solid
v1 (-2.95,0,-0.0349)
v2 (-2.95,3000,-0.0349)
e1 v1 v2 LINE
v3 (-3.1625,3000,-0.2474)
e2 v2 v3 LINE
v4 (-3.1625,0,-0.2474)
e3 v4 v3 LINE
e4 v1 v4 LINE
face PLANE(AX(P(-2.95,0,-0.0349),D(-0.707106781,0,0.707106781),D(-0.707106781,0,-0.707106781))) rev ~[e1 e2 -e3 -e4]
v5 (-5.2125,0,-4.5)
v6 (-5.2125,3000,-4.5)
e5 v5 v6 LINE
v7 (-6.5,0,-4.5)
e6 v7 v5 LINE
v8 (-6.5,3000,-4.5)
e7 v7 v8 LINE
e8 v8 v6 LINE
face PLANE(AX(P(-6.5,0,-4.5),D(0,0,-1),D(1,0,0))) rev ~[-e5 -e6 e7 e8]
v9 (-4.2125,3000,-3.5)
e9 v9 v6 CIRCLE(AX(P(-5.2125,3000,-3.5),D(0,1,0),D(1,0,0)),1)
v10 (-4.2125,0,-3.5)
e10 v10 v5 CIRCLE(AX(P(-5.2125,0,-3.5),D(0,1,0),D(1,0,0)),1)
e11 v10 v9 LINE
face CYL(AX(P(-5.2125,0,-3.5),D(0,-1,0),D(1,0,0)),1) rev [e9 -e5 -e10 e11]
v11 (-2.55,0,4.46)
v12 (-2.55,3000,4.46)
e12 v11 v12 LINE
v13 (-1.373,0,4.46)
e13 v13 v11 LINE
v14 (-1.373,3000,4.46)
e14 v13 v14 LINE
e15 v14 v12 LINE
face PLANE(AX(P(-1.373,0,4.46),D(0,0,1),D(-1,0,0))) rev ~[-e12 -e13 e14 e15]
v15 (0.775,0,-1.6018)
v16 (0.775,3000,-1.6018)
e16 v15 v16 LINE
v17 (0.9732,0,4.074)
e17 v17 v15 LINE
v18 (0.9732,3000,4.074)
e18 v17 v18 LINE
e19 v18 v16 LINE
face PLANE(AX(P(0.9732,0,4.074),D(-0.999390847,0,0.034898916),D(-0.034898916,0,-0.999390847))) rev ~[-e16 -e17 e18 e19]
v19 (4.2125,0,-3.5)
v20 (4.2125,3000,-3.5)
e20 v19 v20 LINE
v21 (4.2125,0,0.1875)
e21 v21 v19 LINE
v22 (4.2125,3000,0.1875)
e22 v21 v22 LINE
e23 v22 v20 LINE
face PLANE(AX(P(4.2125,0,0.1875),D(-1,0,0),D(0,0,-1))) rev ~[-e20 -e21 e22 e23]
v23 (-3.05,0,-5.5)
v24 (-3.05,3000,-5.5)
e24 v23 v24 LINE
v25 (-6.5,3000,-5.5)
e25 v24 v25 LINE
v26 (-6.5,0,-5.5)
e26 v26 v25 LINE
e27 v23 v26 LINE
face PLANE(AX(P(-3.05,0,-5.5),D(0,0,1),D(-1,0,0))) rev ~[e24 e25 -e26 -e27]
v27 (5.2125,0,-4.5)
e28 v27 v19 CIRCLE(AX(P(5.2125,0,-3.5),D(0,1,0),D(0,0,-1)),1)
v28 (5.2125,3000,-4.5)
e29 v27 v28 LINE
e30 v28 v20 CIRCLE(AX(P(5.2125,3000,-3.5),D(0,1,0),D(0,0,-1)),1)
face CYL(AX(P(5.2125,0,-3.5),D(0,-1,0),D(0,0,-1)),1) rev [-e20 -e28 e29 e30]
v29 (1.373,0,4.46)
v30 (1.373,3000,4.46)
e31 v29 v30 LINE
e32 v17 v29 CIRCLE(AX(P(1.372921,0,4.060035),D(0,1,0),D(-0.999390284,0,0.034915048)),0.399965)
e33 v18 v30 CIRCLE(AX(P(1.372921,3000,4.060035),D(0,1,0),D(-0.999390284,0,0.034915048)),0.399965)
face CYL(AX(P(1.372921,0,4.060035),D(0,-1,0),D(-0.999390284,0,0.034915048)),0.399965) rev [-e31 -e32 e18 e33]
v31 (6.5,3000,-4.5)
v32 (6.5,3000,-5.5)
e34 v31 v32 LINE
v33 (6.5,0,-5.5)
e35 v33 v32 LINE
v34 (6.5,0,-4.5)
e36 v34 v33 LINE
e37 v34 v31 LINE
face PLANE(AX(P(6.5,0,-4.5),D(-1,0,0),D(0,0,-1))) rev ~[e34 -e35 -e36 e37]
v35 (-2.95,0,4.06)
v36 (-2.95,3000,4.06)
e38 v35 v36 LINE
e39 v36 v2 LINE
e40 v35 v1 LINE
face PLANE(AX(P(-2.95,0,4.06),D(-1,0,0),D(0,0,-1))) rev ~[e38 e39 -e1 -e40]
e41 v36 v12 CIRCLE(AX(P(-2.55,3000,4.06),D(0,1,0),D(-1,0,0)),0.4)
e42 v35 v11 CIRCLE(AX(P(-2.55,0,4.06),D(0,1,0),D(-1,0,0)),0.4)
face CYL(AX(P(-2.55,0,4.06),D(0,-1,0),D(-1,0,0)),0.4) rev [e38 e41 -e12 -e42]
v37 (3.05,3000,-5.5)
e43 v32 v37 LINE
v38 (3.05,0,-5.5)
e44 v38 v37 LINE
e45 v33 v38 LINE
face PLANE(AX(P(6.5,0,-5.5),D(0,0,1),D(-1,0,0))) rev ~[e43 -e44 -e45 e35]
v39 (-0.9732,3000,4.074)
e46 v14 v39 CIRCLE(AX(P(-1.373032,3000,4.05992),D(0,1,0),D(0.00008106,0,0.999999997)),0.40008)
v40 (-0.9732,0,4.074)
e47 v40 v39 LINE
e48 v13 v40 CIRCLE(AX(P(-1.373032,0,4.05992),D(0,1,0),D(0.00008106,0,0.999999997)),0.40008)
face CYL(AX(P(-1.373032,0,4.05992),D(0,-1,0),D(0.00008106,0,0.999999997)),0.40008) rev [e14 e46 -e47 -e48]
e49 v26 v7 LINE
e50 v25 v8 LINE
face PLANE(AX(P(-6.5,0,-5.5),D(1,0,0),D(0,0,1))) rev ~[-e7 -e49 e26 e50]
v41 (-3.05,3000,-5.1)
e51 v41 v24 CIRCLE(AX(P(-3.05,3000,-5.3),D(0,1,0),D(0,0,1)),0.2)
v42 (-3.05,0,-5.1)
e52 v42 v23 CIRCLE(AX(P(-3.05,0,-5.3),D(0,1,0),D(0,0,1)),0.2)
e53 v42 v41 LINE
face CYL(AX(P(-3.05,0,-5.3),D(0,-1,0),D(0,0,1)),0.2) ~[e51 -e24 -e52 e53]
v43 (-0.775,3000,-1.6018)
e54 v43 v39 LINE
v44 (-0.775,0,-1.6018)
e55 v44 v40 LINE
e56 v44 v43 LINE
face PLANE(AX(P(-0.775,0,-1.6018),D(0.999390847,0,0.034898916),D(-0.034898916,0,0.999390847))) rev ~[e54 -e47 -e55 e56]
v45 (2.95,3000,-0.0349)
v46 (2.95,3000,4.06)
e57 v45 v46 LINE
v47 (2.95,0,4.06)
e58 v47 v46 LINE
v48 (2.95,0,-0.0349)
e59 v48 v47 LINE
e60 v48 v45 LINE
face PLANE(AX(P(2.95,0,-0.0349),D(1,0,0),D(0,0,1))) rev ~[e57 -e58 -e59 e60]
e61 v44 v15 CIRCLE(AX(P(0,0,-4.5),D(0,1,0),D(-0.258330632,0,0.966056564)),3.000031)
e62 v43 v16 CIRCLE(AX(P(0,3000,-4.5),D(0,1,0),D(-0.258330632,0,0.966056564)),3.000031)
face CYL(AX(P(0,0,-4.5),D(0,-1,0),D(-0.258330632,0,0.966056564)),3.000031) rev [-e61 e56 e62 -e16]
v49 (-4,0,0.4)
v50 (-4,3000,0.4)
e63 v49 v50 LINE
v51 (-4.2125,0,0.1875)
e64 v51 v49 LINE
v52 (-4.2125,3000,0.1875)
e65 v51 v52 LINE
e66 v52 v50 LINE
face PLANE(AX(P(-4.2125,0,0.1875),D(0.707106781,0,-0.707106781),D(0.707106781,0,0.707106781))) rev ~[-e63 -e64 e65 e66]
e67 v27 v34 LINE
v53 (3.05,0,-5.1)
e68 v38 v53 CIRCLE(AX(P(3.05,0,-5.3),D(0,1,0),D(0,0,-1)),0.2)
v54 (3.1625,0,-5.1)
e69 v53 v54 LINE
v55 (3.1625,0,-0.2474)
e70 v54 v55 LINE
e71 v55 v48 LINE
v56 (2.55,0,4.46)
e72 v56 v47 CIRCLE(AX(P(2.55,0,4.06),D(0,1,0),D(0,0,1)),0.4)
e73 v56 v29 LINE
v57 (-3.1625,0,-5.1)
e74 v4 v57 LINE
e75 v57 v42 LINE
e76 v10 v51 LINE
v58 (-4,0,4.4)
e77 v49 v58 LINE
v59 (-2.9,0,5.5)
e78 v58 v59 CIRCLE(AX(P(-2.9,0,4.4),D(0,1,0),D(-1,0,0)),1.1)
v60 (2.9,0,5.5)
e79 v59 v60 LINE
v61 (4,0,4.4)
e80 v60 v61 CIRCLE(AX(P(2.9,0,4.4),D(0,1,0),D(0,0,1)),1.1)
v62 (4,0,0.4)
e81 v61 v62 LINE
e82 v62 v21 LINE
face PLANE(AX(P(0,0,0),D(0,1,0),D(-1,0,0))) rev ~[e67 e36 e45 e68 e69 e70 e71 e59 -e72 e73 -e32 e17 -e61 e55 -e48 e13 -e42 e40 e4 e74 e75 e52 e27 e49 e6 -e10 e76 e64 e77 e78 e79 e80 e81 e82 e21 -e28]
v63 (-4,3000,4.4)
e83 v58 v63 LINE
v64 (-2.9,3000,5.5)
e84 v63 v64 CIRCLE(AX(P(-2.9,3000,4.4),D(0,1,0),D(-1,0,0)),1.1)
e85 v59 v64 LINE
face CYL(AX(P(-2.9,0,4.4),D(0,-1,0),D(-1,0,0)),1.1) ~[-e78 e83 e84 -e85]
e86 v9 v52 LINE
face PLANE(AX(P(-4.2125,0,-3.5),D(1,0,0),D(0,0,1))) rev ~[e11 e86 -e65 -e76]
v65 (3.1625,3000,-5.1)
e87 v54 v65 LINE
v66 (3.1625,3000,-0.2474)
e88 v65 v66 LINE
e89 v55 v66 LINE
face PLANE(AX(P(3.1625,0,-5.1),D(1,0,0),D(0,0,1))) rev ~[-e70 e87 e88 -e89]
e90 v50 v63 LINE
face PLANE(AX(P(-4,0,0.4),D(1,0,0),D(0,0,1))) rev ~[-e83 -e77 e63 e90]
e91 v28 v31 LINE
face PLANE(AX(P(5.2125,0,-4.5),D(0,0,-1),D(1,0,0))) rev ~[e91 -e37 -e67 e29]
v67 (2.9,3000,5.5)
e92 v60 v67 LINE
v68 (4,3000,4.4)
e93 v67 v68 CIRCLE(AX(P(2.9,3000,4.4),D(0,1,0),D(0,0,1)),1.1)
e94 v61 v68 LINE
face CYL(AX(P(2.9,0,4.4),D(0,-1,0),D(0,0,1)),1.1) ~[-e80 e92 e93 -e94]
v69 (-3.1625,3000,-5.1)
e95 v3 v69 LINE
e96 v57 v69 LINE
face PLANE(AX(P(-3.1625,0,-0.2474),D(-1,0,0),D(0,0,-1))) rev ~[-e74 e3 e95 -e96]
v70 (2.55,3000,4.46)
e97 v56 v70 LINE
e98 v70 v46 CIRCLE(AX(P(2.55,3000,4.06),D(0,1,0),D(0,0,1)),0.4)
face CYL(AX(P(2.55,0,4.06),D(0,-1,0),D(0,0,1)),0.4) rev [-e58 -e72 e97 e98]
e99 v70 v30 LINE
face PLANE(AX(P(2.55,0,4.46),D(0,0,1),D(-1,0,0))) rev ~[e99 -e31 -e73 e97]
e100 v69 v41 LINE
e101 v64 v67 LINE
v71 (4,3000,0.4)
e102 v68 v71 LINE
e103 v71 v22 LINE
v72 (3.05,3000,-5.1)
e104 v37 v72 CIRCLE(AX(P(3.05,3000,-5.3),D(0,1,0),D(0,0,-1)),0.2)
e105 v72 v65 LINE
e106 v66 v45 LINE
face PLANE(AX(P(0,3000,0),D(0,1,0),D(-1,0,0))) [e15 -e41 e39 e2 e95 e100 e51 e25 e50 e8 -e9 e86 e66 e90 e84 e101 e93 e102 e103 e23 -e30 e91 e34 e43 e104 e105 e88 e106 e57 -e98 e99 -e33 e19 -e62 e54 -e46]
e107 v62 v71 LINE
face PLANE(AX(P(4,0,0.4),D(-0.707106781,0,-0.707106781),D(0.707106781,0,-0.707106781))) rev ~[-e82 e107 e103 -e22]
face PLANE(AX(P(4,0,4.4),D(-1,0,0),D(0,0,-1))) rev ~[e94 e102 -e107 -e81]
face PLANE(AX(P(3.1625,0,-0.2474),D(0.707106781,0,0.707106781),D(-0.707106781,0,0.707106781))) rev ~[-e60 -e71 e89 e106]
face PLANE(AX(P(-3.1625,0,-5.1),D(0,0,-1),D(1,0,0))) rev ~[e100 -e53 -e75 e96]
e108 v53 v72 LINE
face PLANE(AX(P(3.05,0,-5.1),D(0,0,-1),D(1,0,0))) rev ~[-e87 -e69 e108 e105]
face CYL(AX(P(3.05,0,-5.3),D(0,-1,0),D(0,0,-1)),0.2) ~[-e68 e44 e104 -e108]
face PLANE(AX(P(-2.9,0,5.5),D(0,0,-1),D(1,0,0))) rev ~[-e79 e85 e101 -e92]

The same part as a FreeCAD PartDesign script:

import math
import FreeCAD as App
import Part
import Sketcher

V = App.Vector
Q = App.Units.Quantity

doc = App.newDocument("Part")
body = doc.addObject("PartDesign::Body", "Body")

# Sketch on XZ plane
sketch1 = doc.addObject("Sketcher::SketchObject", "Sketch")
body.addObject(sketch1)
sketch1.AttachmentSupport = (doc.XZ_Plane, [""])
sketch1.MapMode = "FlatFace"
sketch1.addGeometry([
    Part.LineSegment(V(6.5, -5.5, 0), V(3.05, -5.5, 0)),  # 0
    Part.ArcOfCircle(Part.Circle(V(3.05, -5.3, 0), V(0, 0, 1), 0.2), math.radians(90), math.radians(270)),  # 1
    Part.LineSegment(V(3.05, -5.1, 0), V(3.1625, -5.1, 0)),  # 2
    Part.LineSegment(V(3.1625, -5.1, 0), V(3.1625, -0.2474, 0)),  # 3
    Part.LineSegment(V(3.1625, -0.2474, 0), V(2.95, -0.0349, 0)),  # 4
    Part.LineSegment(V(2.95, -0.0349, 0), V(2.95, 4.06, 0)),  # 5
    Part.ArcOfCircle(Part.Circle(V(2.55, 4.06, 0), V(0, 0, 1), 0.4), math.radians(0), math.radians(90)),  # 6
    Part.LineSegment(V(2.55, 4.46, 0), V(1.373, 4.46, 0)),  # 7
    Part.ArcOfCircle(Part.Circle(V(1.373, 4.06, 0), V(0, 0, 1), 0.400045), math.radians(90), math.radians(177.994464)),  # 8
    Part.LineSegment(V(0.9732, 4.074, 0), V(0.775, -1.6018, 0)),  # 9
    Part.ArcOfCircle(Part.Circle(V(0, -4.5, 0), V(0, 0, 1), 3.000031), math.radians(75.028969), math.radians(104.971031)),  # 10
    Part.LineSegment(V(-0.775, -1.6018, 0), V(-0.9732, 4.074, 0)),  # 11
    Part.ArcOfCircle(Part.Circle(V(-1.373, 4.06, 0), V(0, 0, 1), 0.4), math.radians(2.005536), math.radians(90)),  # 12
    Part.LineSegment(V(-1.373, 4.46, 0), V(-2.55, 4.46, 0)),  # 13
    Part.ArcOfCircle(Part.Circle(V(-2.55, 4.06, 0), V(0, 0, 1), 0.4), math.radians(90), math.radians(180)),  # 14
    Part.LineSegment(V(-2.95, 4.06, 0), V(-2.95, -0.0349, 0)),  # 15
    Part.LineSegment(V(-2.95, -0.0349, 0), V(-3.1625, -0.2474, 0)),  # 16
    Part.LineSegment(V(-3.1625, -0.2474, 0), V(-3.1625, -5.1, 0)),  # 17
    Part.LineSegment(V(-3.1625, -5.1, 0), V(-3.05, -5.1, 0)),  # 18
    Part.ArcOfCircle(Part.Circle(V(-3.05, -5.3, 0), V(0, 0, 1), 0.2), math.radians(-90), math.radians(90)),  # 19
    Part.LineSegment(V(-3.05, -5.5, 0), V(-6.5, -5.5, 0)),  # 20
    Part.LineSegment(V(-6.5, -5.5, 0), V(-6.5, -4.5, 0)),  # 21
    Part.LineSegment(V(-6.5, -4.5, 0), V(-5.2125, -4.5, 0)),  # 22
    Part.ArcOfCircle(Part.Circle(V(-5.2125, -3.5, 0), V(0, 0, 1), 1), math.radians(-90), math.radians(0)),  # 23
    Part.LineSegment(V(-4.2125, -3.5, 0), V(-4.2125, 0.1875, 0)),  # 24
    Part.LineSegment(V(-4.2125, 0.1875, 0), V(-4, 0.4, 0)),  # 25
    Part.LineSegment(V(-4, 0.4, 0), V(-4, 4.4, 0)),  # 26
    Part.ArcOfCircle(Part.Circle(V(-2.9, 4.4, 0), V(0, 0, 1), 1.1), math.radians(90), math.radians(180)),  # 27
    Part.LineSegment(V(-2.9, 5.5, 0), V(2.9, 5.5, 0)),  # 28
    Part.ArcOfCircle(Part.Circle(V(2.9, 4.4, 0), V(0, 0, 1), 1.1), math.radians(0), math.radians(90)),  # 29
    Part.LineSegment(V(4, 4.4, 0), V(4, 0.4, 0)),  # 30
    Part.LineSegment(V(4, 0.4, 0), V(4.2125, 0.1875, 0)),  # 31
    Part.LineSegment(V(4.2125, 0.1875, 0), V(4.2125, -3.5, 0)),  # 32
    Part.ArcOfCircle(Part.Circle(V(5.2125, -3.5, 0), V(0, 0, 1), 1), math.radians(180), math.radians(270)),  # 33
    Part.LineSegment(V(5.2125, -4.5, 0), V(6.5, -4.5, 0)),  # 34
    Part.LineSegment(V(6.5, -4.5, 0), V(6.5, -5.5, 0)),  # 35
], False)
sketch1.addConstraint([
    Sketcher.Constraint("Tangent", 0, 2, 1, 2),
    Sketcher.Constraint("Tangent", 1, 1, 2, 1),
    Sketcher.Constraint("Coincident", 2, 2, 3, 1),
    Sketcher.Constraint("Coincident", 3, 2, 4, 1),
    Sketcher.Constraint("Coincident", 4, 2, 5, 1),
    Sketcher.Constraint("Tangent", 5, 2, 6, 1),
    Sketcher.Constraint("Tangent", 6, 2, 7, 1),
    Sketcher.Constraint("Tangent", 7, 2, 8, 1),
    Sketcher.Constraint("Tangent", 8, 2, 9, 1),
    Sketcher.Constraint("Coincident", 9, 2, 10, 1),
    Sketcher.Constraint("Coincident", 10, 2, 11, 1),
    Sketcher.Constraint("Tangent", 11, 2, 12, 1),
    Sketcher.Constraint("Tangent", 12, 2, 13, 1),
    Sketcher.Constraint("Tangent", 13, 2, 14, 1),
    Sketcher.Constraint("Tangent", 14, 2, 15, 1),
    Sketcher.Constraint("Coincident", 15, 2, 16, 1),
    Sketcher.Constraint("Coincident", 16, 2, 17, 1),
    Sketcher.Constraint("Coincident", 17, 2, 18, 1),
    Sketcher.Constraint("Tangent", 18, 2, 19, 2),
    Sketcher.Constraint("Tangent", 19, 1, 20, 1),
    Sketcher.Constraint("Coincident", 20, 2, 21, 1),
    Sketcher.Constraint("Coincident", 21, 2, 22, 1),
    Sketcher.Constraint("Tangent", 22, 2, 23, 1),
    Sketcher.Constraint("Tangent", 23, 2, 24, 1),
    Sketcher.Constraint("Coincident", 24, 2, 25, 1),
    Sketcher.Constraint("Coincident", 25, 2, 26, 1),
    Sketcher.Constraint("Tangent", 26, 2, 27, 2),
    Sketcher.Constraint("Tangent", 27, 1, 28, 1),
    Sketcher.Constraint("Tangent", 28, 2, 29, 2),
    Sketcher.Constraint("Tangent", 29, 1, 30, 1),
    Sketcher.Constraint("Coincident", 30, 2, 31, 1),
    Sketcher.Constraint("Coincident", 31, 2, 32, 1),
    Sketcher.Constraint("Tangent", 32, 2, 33, 1),
    Sketcher.Constraint("Tangent", 33, 2, 34, 1),
    Sketcher.Constraint("Coincident", 34, 2, 35, 1),
    Sketcher.Constraint("Coincident", 35, 2, 0, 1),
    Sketcher.Constraint("Horizontal", 0),
    Sketcher.Constraint("Horizontal", 2),
    Sketcher.Constraint("Vertical", 3),
    Sketcher.Constraint("Vertical", 5),
    Sketcher.Constraint("Horizontal", 7),
    Sketcher.Constraint("Horizontal", 13),
    Sketcher.Constraint("Vertical", 15),
    Sketcher.Constraint("Vertical", 17),
    Sketcher.Constraint("Horizontal", 18),
    Sketcher.Constraint("Horizontal", 20),
    Sketcher.Constraint("Vertical", 21),
    Sketcher.Constraint("Horizontal", 22),
    Sketcher.Constraint("Vertical", 24),
    Sketcher.Constraint("Vertical", 26),
    Sketcher.Constraint("Horizontal", 28),
    Sketcher.Constraint("Vertical", 30),
    Sketcher.Constraint("Vertical", 32),
    Sketcher.Constraint("Horizontal", 34),
    Sketcher.Constraint("Vertical", 35),
    Sketcher.Constraint("Equal", 6, 8),
    Sketcher.Constraint("Equal", 8, 12),
    Sketcher.Constraint("Equal", 12, 14),
    Sketcher.Constraint("Equal", 1, 19),
    Sketcher.Constraint("Equal", 27, 29),
    Sketcher.Constraint("Equal", 23, 33),
    Sketcher.Constraint("Symmetric", 8, 3, 12, 3, -2),
    Sketcher.Constraint("Symmetric", 1, 3, 19, 3, -2),
    Sketcher.Constraint("Symmetric", 23, 3, 33, 3, -2),
    Sketcher.Constraint("Symmetric", 9, 2, 10, 2, -2),
    Sketcher.Constraint("Symmetric", 4, 2, 15, 2, -2),
    Sketcher.Constraint("Symmetric", 3, 2, 16, 2, -2),
    Sketcher.Constraint("Symmetric", 25, 2, 30, 2, -2),
    Sketcher.Constraint("Perpendicular", 4, 16),
    Sketcher.Constraint("Parallel", 16, 25),
    Sketcher.Constraint("Perpendicular", 25, 31),
    Sketcher.Constraint("Horizontal", 10, 3, 21, 2),
    Sketcher.Constraint("Equal", 0, 20),
    Sketcher.Constraint("Equal", 16, 25),
    Sketcher.Constraint("Radius", 10, 3.0),
    Sketcher.Constraint("Radius", 23, 1.0),
    Sketcher.Constraint("Radius", 1, 0.2),
    Sketcher.Constraint("Radius", 6, 0.4),
    Sketcher.Constraint("Radius", 27, 1.1),
    Sketcher.Constraint("DistanceY", 21, 1, 21, 2, 1.0),
    Sketcher.Constraint("DistanceY", 26, 1, 26, 2, 4.0),
    Sketcher.Constraint("Angle", 9, Q("-92 deg")),
    Sketcher.Constraint("DistanceX", 28, 1, 28, 2, 5.8),
    Sketcher.Constraint("DistanceX", 0, 2, 0, 1, 3.45),
    Sketcher.Constraint("DistanceY", 1, 3, -1, 1, 5.3),
    Sketcher.Constraint("DistanceY", -1, 1, 27, 3, 4.4),
    Sketcher.Constraint("DistanceX", 20, 2, -1, 1, 6.5),
    Sketcher.Constraint("DistanceX", 6, 3, 1, 3, 0.5),
    Sketcher.Constraint("DistanceX", 7, 2, 7, 1, 1.177),
    Sketcher.Constraint("DistanceY", 5, 1, 5, 2, 4.095),
    Sketcher.Constraint("DistanceY", -1, 1, 6, 3, 4.06),
    Sketcher.Constraint("DistanceX", 2, 1, 2, 2, 0.1125),
])
pad1 = doc.addObject("PartDesign::Pad", "Pad")
body.addObject(pad1)
pad1.Profile = sketch1
pad1.Length = 3000
pad1.Reversed = True

doc.recompute()
